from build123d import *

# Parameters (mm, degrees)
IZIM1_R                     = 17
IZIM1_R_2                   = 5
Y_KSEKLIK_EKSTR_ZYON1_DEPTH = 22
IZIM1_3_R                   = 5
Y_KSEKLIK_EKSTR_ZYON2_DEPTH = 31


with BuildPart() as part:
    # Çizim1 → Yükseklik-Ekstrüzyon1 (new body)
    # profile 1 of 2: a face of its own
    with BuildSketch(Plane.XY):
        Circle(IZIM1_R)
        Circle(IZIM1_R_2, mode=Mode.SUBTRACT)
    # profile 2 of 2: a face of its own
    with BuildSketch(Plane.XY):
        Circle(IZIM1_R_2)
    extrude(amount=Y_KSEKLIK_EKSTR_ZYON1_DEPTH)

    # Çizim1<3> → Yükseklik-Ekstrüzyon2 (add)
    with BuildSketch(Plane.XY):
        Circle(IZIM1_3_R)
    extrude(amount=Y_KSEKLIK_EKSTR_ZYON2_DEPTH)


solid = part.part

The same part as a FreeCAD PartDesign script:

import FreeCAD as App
import Part
import Sketcher
from FreeCAD import Vector
Q = App.Units.Quantity

doc = App.newDocument("Part")
body = doc.addObject("PartDesign::Body", "Body")

sketch1 = doc.addObject("Sketcher::SketchObject", "Sketch")
body.addObject(sketch1)
sketch1.AttachmentSupport = (doc.XY_Plane, [""])
sketch1.MapMode = "FlatFace"
sketch1.addGeometry(Part.Circle(Vector(0, 0, 0), Vector(0, 0, 1), 17), False)
sketch1.addConstraint([
    Sketcher.Constraint("Coincident", 0, 3, -1, 1),
    Sketcher.Constraint("Diameter", 0, Q("34 mm")),
])
pad1 = doc.addObject("PartDesign::Pad", "Pad")
body.addObject(pad1)
pad1.Profile = sketch1
pad1.Length = 22

sketch2 = doc.addObject("Sketcher::SketchObject", "Sketch001")
body.addObject(sketch2)
sketch2.AttachmentSupport = (doc.XY_Plane, [""])
sketch2.MapMode = "FlatFace"
sketch2.addGeometry(Part.Circle(Vector(0, 0, 0), Vector(0, 0, 1), 5), False)
sketch2.addConstraint([
    Sketcher.Constraint("Coincident", 0, 3, -1, 1),
    Sketcher.Constraint("Diameter", 0, Q("10 mm")),
])
pad2 = doc.addObject("PartDesign::Pad", "Pad001")
body.addObject(pad2)
pad2.Profile = sketch2
pad2.Length = 31

doc.recompute()
